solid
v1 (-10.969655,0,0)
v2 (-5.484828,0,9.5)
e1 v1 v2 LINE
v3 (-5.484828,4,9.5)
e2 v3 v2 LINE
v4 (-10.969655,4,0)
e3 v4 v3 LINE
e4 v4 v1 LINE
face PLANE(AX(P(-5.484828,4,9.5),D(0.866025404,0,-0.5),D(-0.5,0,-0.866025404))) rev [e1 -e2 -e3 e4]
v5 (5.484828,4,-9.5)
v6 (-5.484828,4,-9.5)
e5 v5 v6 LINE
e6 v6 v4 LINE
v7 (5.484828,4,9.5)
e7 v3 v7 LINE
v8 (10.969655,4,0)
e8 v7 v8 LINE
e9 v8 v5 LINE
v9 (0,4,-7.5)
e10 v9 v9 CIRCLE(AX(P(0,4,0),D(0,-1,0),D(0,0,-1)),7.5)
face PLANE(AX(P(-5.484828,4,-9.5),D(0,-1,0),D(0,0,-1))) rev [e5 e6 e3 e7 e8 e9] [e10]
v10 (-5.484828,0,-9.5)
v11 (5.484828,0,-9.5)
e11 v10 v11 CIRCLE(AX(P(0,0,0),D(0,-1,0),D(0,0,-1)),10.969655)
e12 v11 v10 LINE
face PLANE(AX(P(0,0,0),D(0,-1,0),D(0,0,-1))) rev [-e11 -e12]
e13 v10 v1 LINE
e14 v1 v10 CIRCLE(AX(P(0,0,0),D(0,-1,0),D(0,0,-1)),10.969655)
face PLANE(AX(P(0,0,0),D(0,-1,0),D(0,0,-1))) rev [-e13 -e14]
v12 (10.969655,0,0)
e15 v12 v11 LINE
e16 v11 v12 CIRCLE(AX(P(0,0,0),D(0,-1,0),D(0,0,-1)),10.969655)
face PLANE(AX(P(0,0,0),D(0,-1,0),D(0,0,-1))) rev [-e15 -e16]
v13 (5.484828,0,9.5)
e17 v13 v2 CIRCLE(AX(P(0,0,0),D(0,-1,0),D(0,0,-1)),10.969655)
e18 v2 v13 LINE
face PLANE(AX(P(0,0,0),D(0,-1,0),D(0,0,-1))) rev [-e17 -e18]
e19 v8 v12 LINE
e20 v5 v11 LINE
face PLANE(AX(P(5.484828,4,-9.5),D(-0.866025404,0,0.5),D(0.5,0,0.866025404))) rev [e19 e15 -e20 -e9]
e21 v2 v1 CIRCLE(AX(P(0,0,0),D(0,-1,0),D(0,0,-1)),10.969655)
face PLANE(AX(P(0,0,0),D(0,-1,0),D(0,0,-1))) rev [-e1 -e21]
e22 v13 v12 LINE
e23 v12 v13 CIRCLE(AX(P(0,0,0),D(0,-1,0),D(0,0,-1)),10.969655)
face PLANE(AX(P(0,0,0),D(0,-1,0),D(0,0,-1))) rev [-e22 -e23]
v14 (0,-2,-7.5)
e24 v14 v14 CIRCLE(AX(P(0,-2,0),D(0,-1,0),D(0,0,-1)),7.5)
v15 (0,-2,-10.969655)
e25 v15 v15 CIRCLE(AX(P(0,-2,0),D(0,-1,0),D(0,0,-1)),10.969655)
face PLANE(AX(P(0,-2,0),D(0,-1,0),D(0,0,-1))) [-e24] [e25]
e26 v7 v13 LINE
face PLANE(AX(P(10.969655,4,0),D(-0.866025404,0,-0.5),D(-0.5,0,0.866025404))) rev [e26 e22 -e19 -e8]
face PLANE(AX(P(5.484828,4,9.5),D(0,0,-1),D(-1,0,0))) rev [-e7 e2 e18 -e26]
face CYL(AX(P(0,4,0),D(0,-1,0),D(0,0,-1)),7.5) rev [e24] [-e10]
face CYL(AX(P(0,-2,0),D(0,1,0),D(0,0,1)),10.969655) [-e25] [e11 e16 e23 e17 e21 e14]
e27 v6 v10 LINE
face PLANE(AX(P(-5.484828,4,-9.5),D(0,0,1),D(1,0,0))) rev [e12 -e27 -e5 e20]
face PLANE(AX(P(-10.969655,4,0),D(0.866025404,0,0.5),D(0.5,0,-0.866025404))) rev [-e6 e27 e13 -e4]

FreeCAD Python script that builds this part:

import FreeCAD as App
import Part
import Sketcher
Q = App.Units.Quantity

doc = App.newDocument("Part")
body = doc.addObject("PartDesign::Body", "Body")

# Sketch on XZ plane
sketch1 = body.newObject("Sketcher::SketchObject", "Sketch")
sketch1.AttachmentSupport = (doc.getObject("XZ_Plane"), [""])
sketch1.MapMode = "FlatFace"
sketch1.addGeometry([
    Part.LineSegment(App.Vector(5, -10, 0), App.Vector(-5, -10, 0)),  # 0
    Part.LineSegment(App.Vector(-5, -10, 0), App.Vector(-11, 0, 0)),  # 1
    Part.LineSegment(App.Vector(-11, 0, 0), App.Vector(-5, 10, 0)),  # 2
    Part.LineSegment(App.Vector(-5, 10, 0), App.Vector(5, 10, 0)),  # 3
    Part.LineSegment(App.Vector(5, 10, 0), App.Vector(11, 0, 0)),  # 4
    Part.LineSegment(App.Vector(11, 0, 0), App.Vector(5, -10, 0)),  # 5
], False)
sketch1.addConstraint([
    Sketcher.Constraint("Coincident", 0, 2, 1, 1),
    Sketcher.Constraint("Coincident", 1, 2, 2, 1),
    Sketcher.Constraint("Coincident", 2, 2, 3, 1),
    Sketcher.Constraint("Coincident", 3, 2, 4, 1),
    Sketcher.Constraint("Coincident", 4, 2, 5, 1),
    Sketcher.Constraint("Coincident", 5, 2, 0, 1),
    Sketcher.Constraint("Horizontal", 0),
    Sketcher.Constraint("Horizontal", 3),
    Sketcher.Constraint("Symmetric", 0, 2, 3, 2, -1, 1),
    Sketcher.Constraint("Symmetric", 1, 2, 4, 2, -1, 1),
    Sketcher.Constraint("PointOnObject", 1, 2, -1),
    Sketcher.Constraint("Parallel", 2, 5),
    Sketcher.Constraint("Vertical", 0, 2, 2, 2),
    Sketcher.Constraint("Angle", 1, Q("120 deg")),
    Sketcher.Constraint("DistanceY", 0, 2, 2, 2, Q("19 mm")),
    Sketcher.Constraint("DistanceX", 0, 2, 0, 1, Q("10.969655 mm")),
])
pad1 = body.newObject("PartDesign::Pad", "Pad")
pad1.Profile = sketch1
pad1.Length = 4
pad1.Reversed = True

# Sketch on XZ plane
sketch2 = body.newObject("Sketcher::SketchObject", "Sketch001")
sketch2.AttachmentSupport = (doc.getObject("XZ_Plane"), [""])
sketch2.MapMode = "FlatFace"
sketch2.addGeometry(Part.Circle(App.Vector(0, 0, 0), App.Vector(0, 0, 1), 11), False)
sketch2.addConstraint([
    Sketcher.Constraint("Coincident", 0, 3, -1, 1),
    Sketcher.Constraint("Diameter", 0, Q("21.93931 mm")),
])
pad2 = body.newObject("PartDesign::Pad", "Pad001")
pad2.Profile = sketch2
pad2.Length = 2

# Sketch on XZ plane
sketch3 = body.newObject("Sketcher::SketchObject", "Sketch002")
sketch3.AttachmentSupport = (doc.getObject("XZ_Plane"), [""])
sketch3.MapMode = "FlatFace"
sketch3.AttachmentOffset = App.Placement(App.Vector(0, 0, 2), App.Rotation())
sketch3.addGeometry(Part.Circle(App.Vector(0, 0, 0), App.Vector(0, 0, 1), 8), False)
sketch3.addConstraint([
    Sketcher.Constraint("Coincident", 0, 3, -1, 1),
    Sketcher.Constraint("Diameter", 0, Q("15 mm")),
])
pocket1 = body.newObject("PartDesign::Pocket", "Pocket")
pocket1.Profile = sketch3
pocket1.Type = "ThroughAll"

doc.recompute()
